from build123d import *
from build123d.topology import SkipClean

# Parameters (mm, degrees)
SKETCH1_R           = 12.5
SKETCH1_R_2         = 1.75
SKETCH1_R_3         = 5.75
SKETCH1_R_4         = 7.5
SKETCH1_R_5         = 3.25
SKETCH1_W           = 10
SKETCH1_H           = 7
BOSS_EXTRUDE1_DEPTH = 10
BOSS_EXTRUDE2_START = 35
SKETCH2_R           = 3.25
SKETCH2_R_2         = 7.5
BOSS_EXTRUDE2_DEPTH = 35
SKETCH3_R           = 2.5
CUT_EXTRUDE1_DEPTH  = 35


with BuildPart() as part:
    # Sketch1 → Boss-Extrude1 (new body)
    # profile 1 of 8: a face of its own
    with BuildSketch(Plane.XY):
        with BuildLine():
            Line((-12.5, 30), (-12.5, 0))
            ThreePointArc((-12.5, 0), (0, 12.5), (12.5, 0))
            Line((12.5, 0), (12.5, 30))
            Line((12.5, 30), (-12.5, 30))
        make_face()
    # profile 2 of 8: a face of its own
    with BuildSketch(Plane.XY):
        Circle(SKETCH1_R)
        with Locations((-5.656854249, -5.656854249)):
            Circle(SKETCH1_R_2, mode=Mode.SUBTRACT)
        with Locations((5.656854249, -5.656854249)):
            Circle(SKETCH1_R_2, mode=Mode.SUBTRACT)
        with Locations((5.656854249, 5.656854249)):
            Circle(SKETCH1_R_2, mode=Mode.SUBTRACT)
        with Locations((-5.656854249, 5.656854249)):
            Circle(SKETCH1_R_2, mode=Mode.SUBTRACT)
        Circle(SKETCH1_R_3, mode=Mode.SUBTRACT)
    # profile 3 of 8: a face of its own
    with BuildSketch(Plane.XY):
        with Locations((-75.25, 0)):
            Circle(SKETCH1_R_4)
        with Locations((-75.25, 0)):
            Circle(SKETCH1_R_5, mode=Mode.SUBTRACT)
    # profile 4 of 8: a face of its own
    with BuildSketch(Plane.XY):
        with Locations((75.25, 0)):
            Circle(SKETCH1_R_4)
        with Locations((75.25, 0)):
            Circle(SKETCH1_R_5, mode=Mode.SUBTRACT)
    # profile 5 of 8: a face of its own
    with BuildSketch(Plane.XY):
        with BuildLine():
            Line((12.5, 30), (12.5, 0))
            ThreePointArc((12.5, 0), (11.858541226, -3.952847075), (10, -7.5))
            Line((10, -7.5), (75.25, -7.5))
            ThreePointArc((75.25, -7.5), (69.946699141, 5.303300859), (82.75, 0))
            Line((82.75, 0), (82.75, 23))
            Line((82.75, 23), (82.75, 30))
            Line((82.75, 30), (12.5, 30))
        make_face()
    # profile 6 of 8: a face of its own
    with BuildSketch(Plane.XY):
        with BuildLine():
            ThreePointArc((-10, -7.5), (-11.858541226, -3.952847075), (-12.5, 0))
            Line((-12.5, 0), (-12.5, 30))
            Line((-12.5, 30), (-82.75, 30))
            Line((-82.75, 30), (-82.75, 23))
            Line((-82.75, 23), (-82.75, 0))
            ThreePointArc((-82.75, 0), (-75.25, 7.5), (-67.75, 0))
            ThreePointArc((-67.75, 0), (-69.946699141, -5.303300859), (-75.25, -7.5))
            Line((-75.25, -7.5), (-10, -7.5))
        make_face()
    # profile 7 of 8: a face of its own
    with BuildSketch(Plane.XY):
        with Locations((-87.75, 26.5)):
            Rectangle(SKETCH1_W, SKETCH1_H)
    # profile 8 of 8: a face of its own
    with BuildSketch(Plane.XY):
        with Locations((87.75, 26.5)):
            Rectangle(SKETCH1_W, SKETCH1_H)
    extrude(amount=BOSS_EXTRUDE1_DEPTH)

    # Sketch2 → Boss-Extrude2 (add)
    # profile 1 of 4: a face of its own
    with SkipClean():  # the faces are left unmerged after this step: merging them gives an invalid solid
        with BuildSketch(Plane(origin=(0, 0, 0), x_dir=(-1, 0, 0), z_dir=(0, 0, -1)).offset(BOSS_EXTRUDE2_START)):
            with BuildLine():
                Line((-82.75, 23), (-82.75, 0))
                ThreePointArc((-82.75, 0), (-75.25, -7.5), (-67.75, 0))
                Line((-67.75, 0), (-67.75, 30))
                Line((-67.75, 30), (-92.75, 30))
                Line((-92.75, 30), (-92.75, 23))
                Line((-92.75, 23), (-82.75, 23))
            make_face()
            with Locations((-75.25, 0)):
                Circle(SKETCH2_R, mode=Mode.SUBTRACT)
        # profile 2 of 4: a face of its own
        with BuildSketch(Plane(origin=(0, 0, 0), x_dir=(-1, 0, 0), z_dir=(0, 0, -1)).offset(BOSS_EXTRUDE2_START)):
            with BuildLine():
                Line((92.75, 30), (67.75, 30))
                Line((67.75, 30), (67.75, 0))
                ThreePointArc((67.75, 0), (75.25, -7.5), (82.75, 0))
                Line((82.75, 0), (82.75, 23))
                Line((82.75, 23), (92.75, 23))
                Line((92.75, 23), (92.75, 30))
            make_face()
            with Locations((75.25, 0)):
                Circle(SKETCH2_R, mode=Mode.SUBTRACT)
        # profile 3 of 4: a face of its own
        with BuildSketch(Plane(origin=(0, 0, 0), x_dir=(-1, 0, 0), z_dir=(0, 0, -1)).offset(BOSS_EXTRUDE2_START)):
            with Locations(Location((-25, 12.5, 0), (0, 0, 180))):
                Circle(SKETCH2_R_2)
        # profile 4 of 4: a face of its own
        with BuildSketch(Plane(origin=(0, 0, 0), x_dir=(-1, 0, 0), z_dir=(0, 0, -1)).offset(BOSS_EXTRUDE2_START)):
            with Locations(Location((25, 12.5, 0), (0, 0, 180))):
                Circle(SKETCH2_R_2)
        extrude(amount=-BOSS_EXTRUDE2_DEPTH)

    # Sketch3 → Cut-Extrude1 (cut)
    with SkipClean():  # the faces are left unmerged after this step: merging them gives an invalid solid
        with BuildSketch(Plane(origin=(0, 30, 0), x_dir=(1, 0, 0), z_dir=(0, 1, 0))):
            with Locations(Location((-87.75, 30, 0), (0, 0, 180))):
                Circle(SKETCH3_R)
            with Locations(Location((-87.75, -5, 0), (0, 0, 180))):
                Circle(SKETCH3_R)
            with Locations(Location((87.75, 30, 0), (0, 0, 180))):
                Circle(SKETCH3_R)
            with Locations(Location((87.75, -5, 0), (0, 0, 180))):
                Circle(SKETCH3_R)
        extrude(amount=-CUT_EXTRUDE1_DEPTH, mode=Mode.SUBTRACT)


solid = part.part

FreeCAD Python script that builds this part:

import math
import FreeCAD as App
import Part
import Sketcher
from FreeCAD import Vector
Q = App.Units.Quantity

doc = App.newDocument("Part")
body = doc.addObject("PartDesign::Body", "Body")

# Sketch on XY plane
sketch1 = doc.addObject("Sketcher::SketchObject", "Sketch")
body.addObject(sketch1)
sketch1.AttachmentSupport = (doc.XY_Plane, [""])
sketch1.MapMode = "FlatFace"
sketch1.addGeometry(Part.LineSegment(Vector(-92.8, 30, 0), Vector(-92.8, 23, 0)), False)
sketch1.addGeometry(Part.LineSegment(Vector(-92.8, 23, 0), Vector(-82.8, 23, 0)), False)
sketch1.addGeometry(Part.LineSegment(Vector(-82.8, 23, 0), Vector(-82.8, 0, 0)), False)
sketch1.addGeometry(Part.ArcOfCircle(Part.Circle(Vector(-75.2, 0, 0), Vector(0, 0, 1), 7.5), math.radians(180), math.radians(270)), False)
sketch1.addGeometry(Part.LineSegment(Vector(-75.2, -7.5, 0), Vector(-10, -7.5, 0)), False)
sketch1.addGeometry(Part.ArcOfCircle(Part.Circle(Vector(0, 0, 0), Vector(0, 0, 1), 12.5), math.radians(-143), math.radians(-37)), False)
sketch1.addGeometry(Part.LineSegment(Vector(10, -7.5, 0), Vector(75.2, -7.5, 0)), False)
sketch1.addGeometry(Part.ArcOfCircle(Part.Circle(Vector(75.2, 0, 0), Vector(0, 0, 1), 7.5), math.radians(-90), math.radians(0)), False)
sketch1.addGeometry(Part.LineSegment(Vector(82.8, 0, 0), Vector(82.8, 23, 0)), False)
sketch1.addGeometry(Part.LineSegment(Vector(82.8, 23, 0), Vector(92.8, 23, 0)), False)
sketch1.addGeometry(Part.LineSegment(Vector(92.8, 23, 0), Vector(92.8, 30, 0)), False)
sketch1.addGeometry(Part.LineSegment(Vector(92.8, 30, 0), Vector(-92.8, 30, 0)), False)
sketch1.addGeometry(Part.Circle(Vector(5.7, 5.7, 0), Vector(0, 0, 1), 1.8), False)
sketch1.addGeometry(Part.Circle(Vector(-5.7, 5.7, 0), Vector(0, 0, 1), 1.8), False)
sketch1.addGeometry(Part.Circle(Vector(-5.7, -5.7, 0), Vector(0, 0, 1), 1.8), False)
sketch1.addGeometry(Part.Circle(Vector(0, 0, 0), Vector(0, 0, 1), 5.8), False)
sketch1.addGeometry(Part.Circle(Vector(5.7, -5.7, 0), Vector(0, 0, 1), 1.8), False)
sketch1.addGeometry(Part.Circle(Vector(-75.2, 0, 0), Vector(0, 0, 1), 3.2), False)
sketch1.addGeometry(Part.Circle(Vector(75.2, 0, 0), Vector(0, 0, 1), 3.2), False)
sketch1.addConstraint(Sketcher.Constraint("Coincident", 0, 2, 1, 1))
sketch1.addConstraint(Sketcher.Constraint("Coincident", 1, 2, 2, 1))
sketch1.addConstraint(Sketcher.Constraint("Tangent", 2, 2, 3, 1))
sketch1.addConstraint(Sketcher.Constraint("Tangent", 3, 2, 4, 1))
sketch1.addConstraint(Sketcher.Constraint("Coincident", 4, 2, 5, 1))
sketch1.addConstraint(Sketcher.Constraint("Coincident", 5, 2, 6, 1))
sketch1.addConstraint(Sketcher.Constraint("Tangent", 6, 2, 7, 1))
sketch1.addConstraint(Sketcher.Constraint("Tangent", 7, 2, 8, 1))
sketch1.addConstraint(Sketcher.Constraint("Coincident", 8, 2, 9, 1))
sketch1.addConstraint(Sketcher.Constraint("Coincident", 9, 2, 10, 1))
sketch1.addConstraint(Sketcher.Constraint("Coincident", 10, 2, 11, 1))
sketch1.addConstraint(Sketcher.Constraint("Coincident", 11, 2, 0, 1))
sketch1.addConstraint(Sketcher.Constraint("Vertical", 0))
sketch1.addConstraint(Sketcher.Constraint("Horizontal", 1))
sketch1.addConstraint(Sketcher.Constraint("Vertical", 2))
sketch1.addConstraint(Sketcher.Constraint("Horizontal", 4))
sketch1.addConstraint(Sketcher.Constraint("Horizontal", 6))
sketch1.addConstraint(Sketcher.Constraint("Vertical", 8))
sketch1.addConstraint(Sketcher.Constraint("Horizontal", 9))
sketch1.addConstraint(Sketcher.Constraint("Vertical", 10))
sketch1.addConstraint(Sketcher.Constraint("Horizontal", 11))
sketch1.addConstraint(Sketcher.Constraint("Coincident", 5, 3, -1, 1))
sketch1.addConstraint(Sketcher.Constraint("Coincident", 15, 3, -1, 1))
sketch1.addConstraint(Sketcher.Constraint("Coincident", 17, 3, 3, 3))
sketch1.addConstraint(Sketcher.Constraint("Coincident", 18, 3, 7, 3))
sketch1.addConstraint(Sketcher.Constraint("Equal", 3, 7))
sketch1.addConstraint(Sketcher.Constraint("Equal", 12, 13))
sketch1.addConstraint(Sketcher.Constraint("Equal", 13, 14))
sketch1.addConstraint(Sketcher.Constraint("Equal", 14, 16))
sketch1.addConstraint(Sketcher.Constraint("Equal", 17, 18))
sketch1.addConstraint(Sketcher.Constraint("Symmetric", 3, 3, 7, 3, -1, 1))
sketch1.addConstraint(Sketcher.Constraint("Symmetric", 12, 3, 14, 3, -1, 1))
sketch1.addConstraint(Sketcher.Constraint("Symmetric", 13, 3, 16, 3, -1, 1))
sketch1.addConstraint(Sketcher.Constraint("Symmetric", 12, 3, 13, 3, -2))
sketch1.addConstraint(Sketcher.Constraint("Symmetric", 0, 2, 9, 2, -2))
sketch1.addConstraint(Sketcher.Constraint("PointOnObject", 3, 3, -1))
sketch1.addConstraint(Sketcher.Constraint("Diameter", 12, Q("3.5 mm")))
sketch1.addConstraint(Sketcher.Constraint("Diameter", 15, Q("11.5 mm")))
sketch1.addConstraint(Sketcher.Constraint("Diameter", 17, Q("6.5 mm")))
sketch1.addConstraint(Sketcher.Constraint("Radius", 3, Q("7.5 mm")))
sketch1.addConstraint(Sketcher.Constraint("Radius", 5, Q("12.5 mm")))
sketch1.addConstraint(Sketcher.Constraint("DistanceX", 1, 1, 1, 2, Q("10 mm")))
sketch1.addConstraint(Sketcher.Constraint("DistanceY", 0, 2, 0, 1, Q("7 mm")))
sketch1.addConstraint(Sketcher.Constraint("DistanceY", 2, 2, 2, 1, Q("23 mm")))
sketch1.addConstraint(Sketcher.Constraint("DistanceX", 11, 2, 11, 1, Q("185.5 mm")))
sketch1.addConstraint(Sketcher.Constraint("DistanceX", 13, 3, 12, 3, Q("11.313708 mm")))
sketch1.addConstraint(Sketcher.Constraint("DistanceY", 14, 3, 13, 3, Q("11.313708 mm")))
pad1 = doc.addObject("PartDesign::Pad", "Pad")
body.addObject(pad1)
pad1.Profile = sketch1
pad1.Length = 10

# Sketch on XY plane
sketch2 = doc.addObject("Sketcher::SketchObject", "Sketch001")
body.addObject(sketch2)
sketch2.AttachmentSupport = (doc.XY_Plane, [""])
sketch2.MapMode = "FlatFace"
sketch2.AttachmentOffset = App.Placement(Vector(0, 0, -35), App.Rotation())
sketch2.addGeometry(Part.LineSegment(Vector(82.8, 23, 0), Vector(82.8, 0, 0)), False)
sketch2.addGeometry(Part.ArcOfCircle(Part.Circle(Vector(75.2, 0, 0), Vector(0, 0, 1), 7.5), math.radians(180), math.radians(360)), False)
sketch2.addGeometry(Part.LineSegment(Vector(67.8, 0, 0), Vector(67.8, 30, 0)), False)
sketch2.addGeometry(Part.LineSegment(Vector(67.8, 30, 0), Vector(92.8, 30, 0)), False)
sketch2.addGeometry(Part.LineSegment(Vector(92.8, 30, 0), Vector(92.8, 23, 0)), False)
sketch2.addGeometry(Part.LineSegment(Vector(92.8, 23, 0), Vector(82.8, 23, 0)), False)
sketch2.addGeometry(Part.Circle(Vector(75.2, 0, 0), Vector(0, 0, 1), 3.2), False)
sketch2.addGeometry(Part.LineSegment(Vector(-92.8, 30, 0), Vector(-67.8, 30, 0)), False)
sketch2.addGeometry(Part.LineSegment(Vector(-67.8, 30, 0), Vector(-67.8, 0, 0)), False)
sketch2.addGeometry(Part.ArcOfCircle(Part.Circle(Vector(-75.2, 0, 0), Vector(0, 0, 1), 7.5), math.radians(180), math.radians(360)), False)
sketch2.addGeometry(Part.LineSegment(Vector(-82.8, 0, 0), Vector(-82.8, 23, 0)), False)
sketch2.addGeometry(Part.LineSegment(Vector(-82.8, 23, 0), Vector(-92.8, 23, 0)), False)
sketch2.addGeometry(Part.LineSegment(Vector(-92.8, 23, 0), Vector(-92.8, 30, 0)), False)
sketch2.addGeometry(Part.Circle(Vector(-75.2, 0, 0), Vector(0, 0, 1), 3.2), False)
sketch2.addGeometry(Part.Circle(Vector(25, 12.5, 0), Vector(0, 0, 1), 7.5), False)
sketch2.addGeometry(Part.Circle(Vector(-25, 12.5, 0), Vector(0, 0, 1), 7.5), False)
sketch2.addConstraint(Sketcher.Constraint("Tangent", 0, 2, 1, 2))
sketch2.addConstraint(Sketcher.Constraint("Tangent", 1, 1, 2, 1))
sketch2.addConstraint(Sketcher.Constraint("Coincident", 2, 2, 3, 1))
sketch2.addConstraint(Sketcher.Constraint("Coincident", 3, 2, 4, 1))
sketch2.addConstraint(Sketcher.Constraint("Coincident", 4, 2, 5, 1))
sketch2.addConstraint(Sketcher.Constraint("Coincident", 5, 2, 0, 1))
sketch2.addConstraint(Sketcher.Constraint("Coincident", 7, 2, 8, 1))
sketch2.addConstraint(Sketcher.Constraint("Tangent", 8, 2, 9, 2))
sketch2.addConstraint(Sketcher.Constraint("Tangent", 9, 1, 10, 1))
sketch2.addConstraint(Sketcher.Constraint("Coincident", 10, 2, 11, 1))
sketch2.addConstraint(Sketcher.Constraint("Coincident", 11, 2, 12, 1))
sketch2.addConstraint(Sketcher.Constraint("Coincident", 12, 2, 7, 1))
sketch2.addConstraint(Sketcher.Constraint("Vertical", 0))
sketch2.addConstraint(Sketcher.Constraint("Vertical", 2))
sketch2.addConstraint(Sketcher.Constraint("Horizontal", 3))
sketch2.addConstraint(Sketcher.Constraint("Vertical", 4))
sketch2.addConstraint(Sketcher.Constraint("Horizontal", 5))
sketch2.addConstraint(Sketcher.Constraint("Horizontal", 7))
sketch2.addConstraint(Sketcher.Constraint("Vertical", 8))
sketch2.addConstraint(Sketcher.Constraint("Vertical", 10))
sketch2.addConstraint(Sketcher.Constraint("Horizontal", 11))
sketch2.addConstraint(Sketcher.Constraint("Vertical", 12))
sketch2.addConstraint(Sketcher.Constraint("Coincident", 6, 3, 1, 3))
sketch2.addConstraint(Sketcher.Constraint("Coincident", 13, 3, 9, 3))
sketch2.addConstraint(Sketcher.Constraint("Equal", 1, 9))
sketch2.addConstraint(Sketcher.Constraint("Equal", 6, 13))
sketch2.addConstraint(Sketcher.Constraint("Equal", 9, 14))
sketch2.addConstraint(Sketcher.Constraint("Equal", 14, 15))
sketch2.addConstraint(Sketcher.Constraint("Symmetric", 1, 3, 9, 3, -1, 1))
sketch2.addConstraint(Sketcher.Constraint("Symmetric", 14, 3, 15, 3, -2))
sketch2.addConstraint(Sketcher.Constraint("Symmetric", 4, 2, 11, 2, -2))
sketch2.addConstraint(Sketcher.Constraint("PointOnObject", 1, 3, -1))
sketch2.addConstraint(Sketcher.Constraint("Horizontal", 3, 2, 7, 2))
sketch2.addConstraint(Sketcher.Constraint("Diameter", 14, Q("15 mm")))
sketch2.addConstraint(Sketcher.Constraint("Diameter", 6, Q("6.5 mm")))
sketch2.addConstraint(Sketcher.Constraint("DistanceX", 3, 1, 3, 2, Q("25 mm")))
sketch2.addConstraint(Sketcher.Constraint("DistanceY", 0, 2, 0, 1, Q("23 mm")))
sketch2.addConstraint(Sketcher.Constraint("DistanceY", 2, 1, 2, 2, Q("30 mm")))
sketch2.addConstraint(Sketcher.Constraint("DistanceX", -1, 1, 14, 3, Q("25 mm")))
sketch2.addConstraint(Sketcher.Constraint("DistanceX", 9, 3, 0, 2, Q("158 mm")))
sketch2.addConstraint(Sketcher.Constraint("DistanceY", -1, 1, 14, 3, Q("12.5 mm")))
pad2 = doc.addObject("PartDesign::Pad", "Pad001")
body.addObject(pad2)
pad2.Profile = sketch2
pad2.Length = 35

# Sketch on XZ plane
sketch3 = doc.addObject("Sketcher::SketchObject", "Sketch002")
body.addObject(sketch3)
sketch3.AttachmentSupport = (doc.XZ_Plane, [""])
sketch3.MapMode = "FlatFace"
sketch3.AttachmentOffset = App.Placement(Vector(0, 0, -30), App.Rotation())
sketch3.addGeometry(Part.Circle(Vector(-87.8, -30, 0), Vector(0, 0, 1), 2.5), False)
sketch3.addGeometry(Part.Circle(Vector(-87.8, 5, 0), Vector(0, 0, 1), 2.5), False)
sketch3.addGeometry(Part.Circle(Vector(87.8, -30, 0), Vector(0, 0, 1), 2.5), False)
sketch3.addGeometry(Part.Circle(Vector(87.8, 5, 0), Vector(0, 0, 1), 2.5), False)
sketch3.addConstraint(Sketcher.Constraint("Equal", 0, 1))
sketch3.addConstraint(Sketcher.Constraint("Equal", 1, 2))
sketch3.addConstraint(Sketcher.Constraint("Equal", 2, 3))
sketch3.addConstraint(Sketcher.Constraint("Symmetric", 0, 3, 2, 3, -2))
sketch3.addConstraint(Sketcher.Constraint("Symmetric", 1, 3, 3, 3, -2))
sketch3.addConstraint(Sketcher.Constraint("Vertical", 0, 3, 1, 3))
sketch3.addConstraint(Sketcher.Constraint("Diameter", 0, Q("5 mm")))
sketch3.addConstraint(Sketcher.Constraint("DistanceY", 0, 3, -1, 1, Q("30 mm")))
sketch3.addConstraint(Sketcher.Constraint("DistanceY", -1, 1, 1, 3, Q("5 mm")))
sketch3.addConstraint(Sketcher.Constraint("DistanceX", 0, 3, 2, 3, Q("175.5 mm")))
pocket1 = doc.addObject("PartDesign::Pocket", "Pocket")
body.addObject(pocket1)
pocket1.Profile = sketch3
pocket1.Length = 35
pocket1.Reversed = True

doc.recompute()
